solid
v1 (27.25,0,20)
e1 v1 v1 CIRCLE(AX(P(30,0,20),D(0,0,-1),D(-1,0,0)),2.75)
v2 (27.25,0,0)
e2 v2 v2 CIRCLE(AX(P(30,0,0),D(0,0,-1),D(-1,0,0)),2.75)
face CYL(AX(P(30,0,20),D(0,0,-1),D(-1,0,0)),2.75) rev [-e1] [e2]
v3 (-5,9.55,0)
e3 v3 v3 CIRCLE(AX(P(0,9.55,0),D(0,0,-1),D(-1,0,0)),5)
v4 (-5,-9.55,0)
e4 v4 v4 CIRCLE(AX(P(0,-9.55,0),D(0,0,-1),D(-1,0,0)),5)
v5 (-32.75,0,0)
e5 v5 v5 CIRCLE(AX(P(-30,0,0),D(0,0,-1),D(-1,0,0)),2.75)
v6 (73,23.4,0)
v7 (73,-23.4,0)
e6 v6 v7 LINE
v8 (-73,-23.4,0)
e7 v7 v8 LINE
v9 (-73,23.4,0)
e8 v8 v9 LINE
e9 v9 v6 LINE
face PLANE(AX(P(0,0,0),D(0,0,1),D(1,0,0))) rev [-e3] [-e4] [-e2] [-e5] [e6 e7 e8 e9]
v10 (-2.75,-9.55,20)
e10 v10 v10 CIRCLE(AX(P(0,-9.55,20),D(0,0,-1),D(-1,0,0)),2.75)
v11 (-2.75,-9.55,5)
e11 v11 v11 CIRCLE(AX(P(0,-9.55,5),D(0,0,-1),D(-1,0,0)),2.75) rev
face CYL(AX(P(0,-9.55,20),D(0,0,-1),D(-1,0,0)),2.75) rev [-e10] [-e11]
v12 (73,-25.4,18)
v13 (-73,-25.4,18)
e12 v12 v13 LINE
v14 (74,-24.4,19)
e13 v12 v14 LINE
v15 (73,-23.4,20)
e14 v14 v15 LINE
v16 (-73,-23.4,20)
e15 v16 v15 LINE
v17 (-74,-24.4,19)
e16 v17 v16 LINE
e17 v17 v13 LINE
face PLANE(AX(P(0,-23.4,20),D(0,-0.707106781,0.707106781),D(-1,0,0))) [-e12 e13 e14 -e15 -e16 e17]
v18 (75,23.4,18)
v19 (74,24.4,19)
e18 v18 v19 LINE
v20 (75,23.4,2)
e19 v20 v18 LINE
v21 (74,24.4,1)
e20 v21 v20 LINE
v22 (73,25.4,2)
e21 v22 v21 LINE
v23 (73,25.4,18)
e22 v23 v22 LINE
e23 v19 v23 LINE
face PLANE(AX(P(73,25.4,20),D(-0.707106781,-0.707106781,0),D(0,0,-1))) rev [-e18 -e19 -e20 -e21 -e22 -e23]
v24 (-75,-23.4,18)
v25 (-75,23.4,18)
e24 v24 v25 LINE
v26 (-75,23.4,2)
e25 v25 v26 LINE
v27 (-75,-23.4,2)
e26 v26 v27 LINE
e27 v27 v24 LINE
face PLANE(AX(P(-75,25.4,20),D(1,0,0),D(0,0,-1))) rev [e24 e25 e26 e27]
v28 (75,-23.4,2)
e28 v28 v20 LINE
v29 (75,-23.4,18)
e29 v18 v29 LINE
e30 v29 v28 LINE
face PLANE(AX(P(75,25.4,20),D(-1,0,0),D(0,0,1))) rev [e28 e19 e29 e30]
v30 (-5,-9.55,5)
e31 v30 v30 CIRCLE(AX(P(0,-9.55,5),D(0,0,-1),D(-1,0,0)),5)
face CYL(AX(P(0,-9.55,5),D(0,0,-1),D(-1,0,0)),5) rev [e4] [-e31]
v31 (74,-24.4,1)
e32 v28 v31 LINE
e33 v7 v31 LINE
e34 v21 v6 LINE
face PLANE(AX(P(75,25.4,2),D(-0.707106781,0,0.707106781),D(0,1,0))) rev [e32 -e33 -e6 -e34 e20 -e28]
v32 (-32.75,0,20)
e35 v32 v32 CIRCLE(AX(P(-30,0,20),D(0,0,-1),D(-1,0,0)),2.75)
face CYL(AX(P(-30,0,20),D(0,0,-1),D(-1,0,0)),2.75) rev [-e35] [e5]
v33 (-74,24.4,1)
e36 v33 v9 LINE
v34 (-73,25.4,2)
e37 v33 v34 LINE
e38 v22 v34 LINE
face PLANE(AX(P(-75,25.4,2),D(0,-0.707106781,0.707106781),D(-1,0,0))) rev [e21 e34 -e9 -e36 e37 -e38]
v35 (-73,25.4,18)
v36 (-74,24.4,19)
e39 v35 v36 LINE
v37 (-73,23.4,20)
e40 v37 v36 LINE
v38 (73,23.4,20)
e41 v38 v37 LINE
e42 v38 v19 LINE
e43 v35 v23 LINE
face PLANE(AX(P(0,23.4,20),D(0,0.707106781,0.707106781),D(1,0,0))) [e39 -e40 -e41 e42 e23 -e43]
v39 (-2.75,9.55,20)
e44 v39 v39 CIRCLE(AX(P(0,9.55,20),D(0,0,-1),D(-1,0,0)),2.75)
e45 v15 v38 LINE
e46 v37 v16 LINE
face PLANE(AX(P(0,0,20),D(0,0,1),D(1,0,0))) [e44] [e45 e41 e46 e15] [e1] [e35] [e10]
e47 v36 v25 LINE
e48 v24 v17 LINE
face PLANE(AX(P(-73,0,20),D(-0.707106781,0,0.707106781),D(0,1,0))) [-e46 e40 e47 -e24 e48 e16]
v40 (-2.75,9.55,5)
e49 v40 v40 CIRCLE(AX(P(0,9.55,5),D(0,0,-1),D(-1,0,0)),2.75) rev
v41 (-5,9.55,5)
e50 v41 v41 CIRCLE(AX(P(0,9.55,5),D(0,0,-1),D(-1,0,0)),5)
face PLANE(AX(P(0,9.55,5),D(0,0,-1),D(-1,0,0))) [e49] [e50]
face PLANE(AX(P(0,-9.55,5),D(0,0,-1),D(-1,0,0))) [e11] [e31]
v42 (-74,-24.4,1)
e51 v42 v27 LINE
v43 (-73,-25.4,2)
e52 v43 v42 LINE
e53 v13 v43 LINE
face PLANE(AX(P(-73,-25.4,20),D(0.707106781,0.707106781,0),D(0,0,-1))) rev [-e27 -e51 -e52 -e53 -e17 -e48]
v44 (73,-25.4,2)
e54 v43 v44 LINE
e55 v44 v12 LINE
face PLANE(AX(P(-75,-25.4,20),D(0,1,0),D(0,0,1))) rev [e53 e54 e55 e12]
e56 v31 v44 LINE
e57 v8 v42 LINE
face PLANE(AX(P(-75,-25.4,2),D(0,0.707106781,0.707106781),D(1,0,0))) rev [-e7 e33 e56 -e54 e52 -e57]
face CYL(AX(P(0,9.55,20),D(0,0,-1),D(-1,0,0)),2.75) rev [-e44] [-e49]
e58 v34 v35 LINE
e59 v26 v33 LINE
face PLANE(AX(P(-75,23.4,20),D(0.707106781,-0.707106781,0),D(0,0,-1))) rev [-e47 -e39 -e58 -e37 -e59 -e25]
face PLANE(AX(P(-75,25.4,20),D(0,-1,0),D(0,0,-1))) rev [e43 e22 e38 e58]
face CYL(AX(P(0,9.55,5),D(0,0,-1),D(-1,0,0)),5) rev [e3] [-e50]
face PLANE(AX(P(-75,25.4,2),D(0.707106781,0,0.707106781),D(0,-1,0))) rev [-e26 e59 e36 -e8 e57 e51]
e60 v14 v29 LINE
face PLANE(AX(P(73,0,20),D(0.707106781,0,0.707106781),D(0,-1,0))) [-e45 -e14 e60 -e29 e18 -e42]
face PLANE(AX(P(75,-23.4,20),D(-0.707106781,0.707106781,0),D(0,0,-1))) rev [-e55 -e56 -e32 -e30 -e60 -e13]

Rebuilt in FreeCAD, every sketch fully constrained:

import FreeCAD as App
import Part
import Sketcher
Q = App.Units.Quantity


def edges_at(feature, points):
    """Names of the edges that pass closest to the given points."""
    edges = feature.Shape.Edges
    near = lambda p: min(range(len(edges)), key=lambda i: edges[i].distToShape(Part.Vertex(*p))[0])
    return sorted({f"Edge{near(p) + 1}" for p in points})


def add_polygon(sketch, points):
    """Adds a closed chain of lines whose ends are joined by coincident constraints."""
    first, n = sketch.GeometryCount, len(points)
    for a, b in zip(points, points[1:] + points[:1]):
        sketch.addGeometry(Part.LineSegment(App.Vector(*a, 0), App.Vector(*b, 0)), False)
    for i in range(n):
        sketch.addConstraint(Sketcher.Constraint("Coincident", first + i, 2, first + (i + 1) % n, 1))

doc = App.newDocument("Part")
body = doc.addObject("PartDesign::Body", "Body")

# Sketch on XY plane
sketch1 = body.newObject("Sketcher::SketchObject", "Sketch")
sketch1.AttachmentSupport = (doc.getObject("XY_Plane"), [""])
sketch1.MapMode = "FlatFace"
add_polygon(sketch1, [(-75, 25), (-75, -25), (75, -25), (75, 25)])  # lines 0-3
sketch1.addConstraint([
    Sketcher.Constraint("Vertical", 0),
    Sketcher.Constraint("Horizontal", 1),
    Sketcher.Constraint("Vertical", 2),
    Sketcher.Constraint("Horizontal", 3),
    Sketcher.Constraint("Symmetric", 0, 2, 2, 2, -1, 1),
    Sketcher.Constraint("DistanceX", 1, 1, 1, 2, Q("150 mm")),
    Sketcher.Constraint("DistanceY", 0, 2, 0, 1, Q("50.8 mm")),
])
pad1 = body.newObject("PartDesign::Pad", "Pad")
pad1.Profile = sketch1
pad1.Length = 20

# Sketch on XY plane
sketch2 = body.newObject("Sketcher::SketchObject", "Sketch001")
sketch2.AttachmentSupport = (doc.getObject("XY_Plane"), [""])
sketch2.MapMode = "FlatFace"
sketch2.addGeometry([
    Part.Circle(App.Vector(0, 9.6, 0), App.Vector(0, 0, 1), 2.8),
    Part.Circle(App.Vector(0, -9.6, 0), App.Vector(0, 0, 1), 2.8),
    Part.Circle(App.Vector(-30, 0, 0), App.Vector(0, 0, 1), 2.8),
    Part.Circle(App.Vector(30, 0, 0), App.Vector(0, 0, 1), 2.8),
], False)
sketch2.addConstraint([
    Sketcher.Constraint("Equal", 0, 1),
    Sketcher.Constraint("Equal", 1, 2),
    Sketcher.Constraint("Equal", 2, 3),
    Sketcher.Constraint("Symmetric", 0, 3, 1, 3, -1, 1),
    Sketcher.Constraint("Symmetric", 2, 3, 3, 3, -1, 1),
    Sketcher.Constraint("PointOnObject", 0, 3, -2),
    Sketcher.Constraint("PointOnObject", 2, 3, -1),
    Sketcher.Constraint("Diameter", 0, Q("5.5 mm")),
    Sketcher.Constraint("DistanceX", 2, 3, -1, 1, Q("30 mm")),
    Sketcher.Constraint("DistanceY", 1, 3, 0, 3, Q("19.1 mm")),
])
pocket1 = body.newObject("PartDesign::Pocket", "Pocket")
pocket1.Profile = sketch2
pocket1.Type = "ThroughAll"
pocket1.Reversed = True

# Sketch on XY plane
sketch3 = body.newObject("Sketcher::SketchObject", "Sketch002")
sketch3.AttachmentSupport = (doc.getObject("XY_Plane"), [""])
sketch3.MapMode = "FlatFace"
sketch3.addGeometry([
    Part.Circle(App.Vector(0, 10, 0), App.Vector(0, 0, 1), 5),
    Part.Circle(App.Vector(0, -10, 0), App.Vector(0, 0, 1), 5),
], False)
sketch3.addConstraint([
    Sketcher.Constraint("Equal", 0, 1),
    Sketcher.Constraint("Symmetric", 0, 3, 1, 3, -1, 1),
    Sketcher.Constraint("PointOnObject", 0, 3, -2),
    Sketcher.Constraint("Diameter", 0, Q("10 mm")),
    Sketcher.Constraint("DistanceY", 1, 3, 0, 3, Q("19.1 mm")),
])
pocket2 = body.newObject("PartDesign::Pocket", "Pocket001")
pocket2.Profile = sketch3
pocket2.Length = 5
pocket2.Reversed = True
doc.recompute()

chamfer = body.newObject("PartDesign::Chamfer", "Chamfer")
chamfer.Base = (pocket2, edges_at(pocket2, [
    (0, -25.4, 0),
    (-75, 0, 0),
    (0, 25.4, 0),
    (75, 0, 0),
]))
chamfer.Size = 2
doc.recompute()

chamfer2 = body.newObject("PartDesign::Chamfer", "Chamfer001")
chamfer2.Base = (chamfer, edges_at(chamfer, [
    (-75, 0, 20),
    (0, -25.4, 20),
    (75, 0, 20),
    (0, 25.4, 20),
]))
chamfer2.Size = 2
doc.recompute()

chamfer3 = body.newObject("PartDesign::Chamfer", "Chamfer002")
chamfer3.Base = (chamfer2, edges_at(chamfer2, [
    (-75, 25.4, 10),
    (-75, -25.4, 10),
    (75, 25.4, 10),
    (75, -25.4, 10),
]))
chamfer3.Size = 2

doc.recompute()
